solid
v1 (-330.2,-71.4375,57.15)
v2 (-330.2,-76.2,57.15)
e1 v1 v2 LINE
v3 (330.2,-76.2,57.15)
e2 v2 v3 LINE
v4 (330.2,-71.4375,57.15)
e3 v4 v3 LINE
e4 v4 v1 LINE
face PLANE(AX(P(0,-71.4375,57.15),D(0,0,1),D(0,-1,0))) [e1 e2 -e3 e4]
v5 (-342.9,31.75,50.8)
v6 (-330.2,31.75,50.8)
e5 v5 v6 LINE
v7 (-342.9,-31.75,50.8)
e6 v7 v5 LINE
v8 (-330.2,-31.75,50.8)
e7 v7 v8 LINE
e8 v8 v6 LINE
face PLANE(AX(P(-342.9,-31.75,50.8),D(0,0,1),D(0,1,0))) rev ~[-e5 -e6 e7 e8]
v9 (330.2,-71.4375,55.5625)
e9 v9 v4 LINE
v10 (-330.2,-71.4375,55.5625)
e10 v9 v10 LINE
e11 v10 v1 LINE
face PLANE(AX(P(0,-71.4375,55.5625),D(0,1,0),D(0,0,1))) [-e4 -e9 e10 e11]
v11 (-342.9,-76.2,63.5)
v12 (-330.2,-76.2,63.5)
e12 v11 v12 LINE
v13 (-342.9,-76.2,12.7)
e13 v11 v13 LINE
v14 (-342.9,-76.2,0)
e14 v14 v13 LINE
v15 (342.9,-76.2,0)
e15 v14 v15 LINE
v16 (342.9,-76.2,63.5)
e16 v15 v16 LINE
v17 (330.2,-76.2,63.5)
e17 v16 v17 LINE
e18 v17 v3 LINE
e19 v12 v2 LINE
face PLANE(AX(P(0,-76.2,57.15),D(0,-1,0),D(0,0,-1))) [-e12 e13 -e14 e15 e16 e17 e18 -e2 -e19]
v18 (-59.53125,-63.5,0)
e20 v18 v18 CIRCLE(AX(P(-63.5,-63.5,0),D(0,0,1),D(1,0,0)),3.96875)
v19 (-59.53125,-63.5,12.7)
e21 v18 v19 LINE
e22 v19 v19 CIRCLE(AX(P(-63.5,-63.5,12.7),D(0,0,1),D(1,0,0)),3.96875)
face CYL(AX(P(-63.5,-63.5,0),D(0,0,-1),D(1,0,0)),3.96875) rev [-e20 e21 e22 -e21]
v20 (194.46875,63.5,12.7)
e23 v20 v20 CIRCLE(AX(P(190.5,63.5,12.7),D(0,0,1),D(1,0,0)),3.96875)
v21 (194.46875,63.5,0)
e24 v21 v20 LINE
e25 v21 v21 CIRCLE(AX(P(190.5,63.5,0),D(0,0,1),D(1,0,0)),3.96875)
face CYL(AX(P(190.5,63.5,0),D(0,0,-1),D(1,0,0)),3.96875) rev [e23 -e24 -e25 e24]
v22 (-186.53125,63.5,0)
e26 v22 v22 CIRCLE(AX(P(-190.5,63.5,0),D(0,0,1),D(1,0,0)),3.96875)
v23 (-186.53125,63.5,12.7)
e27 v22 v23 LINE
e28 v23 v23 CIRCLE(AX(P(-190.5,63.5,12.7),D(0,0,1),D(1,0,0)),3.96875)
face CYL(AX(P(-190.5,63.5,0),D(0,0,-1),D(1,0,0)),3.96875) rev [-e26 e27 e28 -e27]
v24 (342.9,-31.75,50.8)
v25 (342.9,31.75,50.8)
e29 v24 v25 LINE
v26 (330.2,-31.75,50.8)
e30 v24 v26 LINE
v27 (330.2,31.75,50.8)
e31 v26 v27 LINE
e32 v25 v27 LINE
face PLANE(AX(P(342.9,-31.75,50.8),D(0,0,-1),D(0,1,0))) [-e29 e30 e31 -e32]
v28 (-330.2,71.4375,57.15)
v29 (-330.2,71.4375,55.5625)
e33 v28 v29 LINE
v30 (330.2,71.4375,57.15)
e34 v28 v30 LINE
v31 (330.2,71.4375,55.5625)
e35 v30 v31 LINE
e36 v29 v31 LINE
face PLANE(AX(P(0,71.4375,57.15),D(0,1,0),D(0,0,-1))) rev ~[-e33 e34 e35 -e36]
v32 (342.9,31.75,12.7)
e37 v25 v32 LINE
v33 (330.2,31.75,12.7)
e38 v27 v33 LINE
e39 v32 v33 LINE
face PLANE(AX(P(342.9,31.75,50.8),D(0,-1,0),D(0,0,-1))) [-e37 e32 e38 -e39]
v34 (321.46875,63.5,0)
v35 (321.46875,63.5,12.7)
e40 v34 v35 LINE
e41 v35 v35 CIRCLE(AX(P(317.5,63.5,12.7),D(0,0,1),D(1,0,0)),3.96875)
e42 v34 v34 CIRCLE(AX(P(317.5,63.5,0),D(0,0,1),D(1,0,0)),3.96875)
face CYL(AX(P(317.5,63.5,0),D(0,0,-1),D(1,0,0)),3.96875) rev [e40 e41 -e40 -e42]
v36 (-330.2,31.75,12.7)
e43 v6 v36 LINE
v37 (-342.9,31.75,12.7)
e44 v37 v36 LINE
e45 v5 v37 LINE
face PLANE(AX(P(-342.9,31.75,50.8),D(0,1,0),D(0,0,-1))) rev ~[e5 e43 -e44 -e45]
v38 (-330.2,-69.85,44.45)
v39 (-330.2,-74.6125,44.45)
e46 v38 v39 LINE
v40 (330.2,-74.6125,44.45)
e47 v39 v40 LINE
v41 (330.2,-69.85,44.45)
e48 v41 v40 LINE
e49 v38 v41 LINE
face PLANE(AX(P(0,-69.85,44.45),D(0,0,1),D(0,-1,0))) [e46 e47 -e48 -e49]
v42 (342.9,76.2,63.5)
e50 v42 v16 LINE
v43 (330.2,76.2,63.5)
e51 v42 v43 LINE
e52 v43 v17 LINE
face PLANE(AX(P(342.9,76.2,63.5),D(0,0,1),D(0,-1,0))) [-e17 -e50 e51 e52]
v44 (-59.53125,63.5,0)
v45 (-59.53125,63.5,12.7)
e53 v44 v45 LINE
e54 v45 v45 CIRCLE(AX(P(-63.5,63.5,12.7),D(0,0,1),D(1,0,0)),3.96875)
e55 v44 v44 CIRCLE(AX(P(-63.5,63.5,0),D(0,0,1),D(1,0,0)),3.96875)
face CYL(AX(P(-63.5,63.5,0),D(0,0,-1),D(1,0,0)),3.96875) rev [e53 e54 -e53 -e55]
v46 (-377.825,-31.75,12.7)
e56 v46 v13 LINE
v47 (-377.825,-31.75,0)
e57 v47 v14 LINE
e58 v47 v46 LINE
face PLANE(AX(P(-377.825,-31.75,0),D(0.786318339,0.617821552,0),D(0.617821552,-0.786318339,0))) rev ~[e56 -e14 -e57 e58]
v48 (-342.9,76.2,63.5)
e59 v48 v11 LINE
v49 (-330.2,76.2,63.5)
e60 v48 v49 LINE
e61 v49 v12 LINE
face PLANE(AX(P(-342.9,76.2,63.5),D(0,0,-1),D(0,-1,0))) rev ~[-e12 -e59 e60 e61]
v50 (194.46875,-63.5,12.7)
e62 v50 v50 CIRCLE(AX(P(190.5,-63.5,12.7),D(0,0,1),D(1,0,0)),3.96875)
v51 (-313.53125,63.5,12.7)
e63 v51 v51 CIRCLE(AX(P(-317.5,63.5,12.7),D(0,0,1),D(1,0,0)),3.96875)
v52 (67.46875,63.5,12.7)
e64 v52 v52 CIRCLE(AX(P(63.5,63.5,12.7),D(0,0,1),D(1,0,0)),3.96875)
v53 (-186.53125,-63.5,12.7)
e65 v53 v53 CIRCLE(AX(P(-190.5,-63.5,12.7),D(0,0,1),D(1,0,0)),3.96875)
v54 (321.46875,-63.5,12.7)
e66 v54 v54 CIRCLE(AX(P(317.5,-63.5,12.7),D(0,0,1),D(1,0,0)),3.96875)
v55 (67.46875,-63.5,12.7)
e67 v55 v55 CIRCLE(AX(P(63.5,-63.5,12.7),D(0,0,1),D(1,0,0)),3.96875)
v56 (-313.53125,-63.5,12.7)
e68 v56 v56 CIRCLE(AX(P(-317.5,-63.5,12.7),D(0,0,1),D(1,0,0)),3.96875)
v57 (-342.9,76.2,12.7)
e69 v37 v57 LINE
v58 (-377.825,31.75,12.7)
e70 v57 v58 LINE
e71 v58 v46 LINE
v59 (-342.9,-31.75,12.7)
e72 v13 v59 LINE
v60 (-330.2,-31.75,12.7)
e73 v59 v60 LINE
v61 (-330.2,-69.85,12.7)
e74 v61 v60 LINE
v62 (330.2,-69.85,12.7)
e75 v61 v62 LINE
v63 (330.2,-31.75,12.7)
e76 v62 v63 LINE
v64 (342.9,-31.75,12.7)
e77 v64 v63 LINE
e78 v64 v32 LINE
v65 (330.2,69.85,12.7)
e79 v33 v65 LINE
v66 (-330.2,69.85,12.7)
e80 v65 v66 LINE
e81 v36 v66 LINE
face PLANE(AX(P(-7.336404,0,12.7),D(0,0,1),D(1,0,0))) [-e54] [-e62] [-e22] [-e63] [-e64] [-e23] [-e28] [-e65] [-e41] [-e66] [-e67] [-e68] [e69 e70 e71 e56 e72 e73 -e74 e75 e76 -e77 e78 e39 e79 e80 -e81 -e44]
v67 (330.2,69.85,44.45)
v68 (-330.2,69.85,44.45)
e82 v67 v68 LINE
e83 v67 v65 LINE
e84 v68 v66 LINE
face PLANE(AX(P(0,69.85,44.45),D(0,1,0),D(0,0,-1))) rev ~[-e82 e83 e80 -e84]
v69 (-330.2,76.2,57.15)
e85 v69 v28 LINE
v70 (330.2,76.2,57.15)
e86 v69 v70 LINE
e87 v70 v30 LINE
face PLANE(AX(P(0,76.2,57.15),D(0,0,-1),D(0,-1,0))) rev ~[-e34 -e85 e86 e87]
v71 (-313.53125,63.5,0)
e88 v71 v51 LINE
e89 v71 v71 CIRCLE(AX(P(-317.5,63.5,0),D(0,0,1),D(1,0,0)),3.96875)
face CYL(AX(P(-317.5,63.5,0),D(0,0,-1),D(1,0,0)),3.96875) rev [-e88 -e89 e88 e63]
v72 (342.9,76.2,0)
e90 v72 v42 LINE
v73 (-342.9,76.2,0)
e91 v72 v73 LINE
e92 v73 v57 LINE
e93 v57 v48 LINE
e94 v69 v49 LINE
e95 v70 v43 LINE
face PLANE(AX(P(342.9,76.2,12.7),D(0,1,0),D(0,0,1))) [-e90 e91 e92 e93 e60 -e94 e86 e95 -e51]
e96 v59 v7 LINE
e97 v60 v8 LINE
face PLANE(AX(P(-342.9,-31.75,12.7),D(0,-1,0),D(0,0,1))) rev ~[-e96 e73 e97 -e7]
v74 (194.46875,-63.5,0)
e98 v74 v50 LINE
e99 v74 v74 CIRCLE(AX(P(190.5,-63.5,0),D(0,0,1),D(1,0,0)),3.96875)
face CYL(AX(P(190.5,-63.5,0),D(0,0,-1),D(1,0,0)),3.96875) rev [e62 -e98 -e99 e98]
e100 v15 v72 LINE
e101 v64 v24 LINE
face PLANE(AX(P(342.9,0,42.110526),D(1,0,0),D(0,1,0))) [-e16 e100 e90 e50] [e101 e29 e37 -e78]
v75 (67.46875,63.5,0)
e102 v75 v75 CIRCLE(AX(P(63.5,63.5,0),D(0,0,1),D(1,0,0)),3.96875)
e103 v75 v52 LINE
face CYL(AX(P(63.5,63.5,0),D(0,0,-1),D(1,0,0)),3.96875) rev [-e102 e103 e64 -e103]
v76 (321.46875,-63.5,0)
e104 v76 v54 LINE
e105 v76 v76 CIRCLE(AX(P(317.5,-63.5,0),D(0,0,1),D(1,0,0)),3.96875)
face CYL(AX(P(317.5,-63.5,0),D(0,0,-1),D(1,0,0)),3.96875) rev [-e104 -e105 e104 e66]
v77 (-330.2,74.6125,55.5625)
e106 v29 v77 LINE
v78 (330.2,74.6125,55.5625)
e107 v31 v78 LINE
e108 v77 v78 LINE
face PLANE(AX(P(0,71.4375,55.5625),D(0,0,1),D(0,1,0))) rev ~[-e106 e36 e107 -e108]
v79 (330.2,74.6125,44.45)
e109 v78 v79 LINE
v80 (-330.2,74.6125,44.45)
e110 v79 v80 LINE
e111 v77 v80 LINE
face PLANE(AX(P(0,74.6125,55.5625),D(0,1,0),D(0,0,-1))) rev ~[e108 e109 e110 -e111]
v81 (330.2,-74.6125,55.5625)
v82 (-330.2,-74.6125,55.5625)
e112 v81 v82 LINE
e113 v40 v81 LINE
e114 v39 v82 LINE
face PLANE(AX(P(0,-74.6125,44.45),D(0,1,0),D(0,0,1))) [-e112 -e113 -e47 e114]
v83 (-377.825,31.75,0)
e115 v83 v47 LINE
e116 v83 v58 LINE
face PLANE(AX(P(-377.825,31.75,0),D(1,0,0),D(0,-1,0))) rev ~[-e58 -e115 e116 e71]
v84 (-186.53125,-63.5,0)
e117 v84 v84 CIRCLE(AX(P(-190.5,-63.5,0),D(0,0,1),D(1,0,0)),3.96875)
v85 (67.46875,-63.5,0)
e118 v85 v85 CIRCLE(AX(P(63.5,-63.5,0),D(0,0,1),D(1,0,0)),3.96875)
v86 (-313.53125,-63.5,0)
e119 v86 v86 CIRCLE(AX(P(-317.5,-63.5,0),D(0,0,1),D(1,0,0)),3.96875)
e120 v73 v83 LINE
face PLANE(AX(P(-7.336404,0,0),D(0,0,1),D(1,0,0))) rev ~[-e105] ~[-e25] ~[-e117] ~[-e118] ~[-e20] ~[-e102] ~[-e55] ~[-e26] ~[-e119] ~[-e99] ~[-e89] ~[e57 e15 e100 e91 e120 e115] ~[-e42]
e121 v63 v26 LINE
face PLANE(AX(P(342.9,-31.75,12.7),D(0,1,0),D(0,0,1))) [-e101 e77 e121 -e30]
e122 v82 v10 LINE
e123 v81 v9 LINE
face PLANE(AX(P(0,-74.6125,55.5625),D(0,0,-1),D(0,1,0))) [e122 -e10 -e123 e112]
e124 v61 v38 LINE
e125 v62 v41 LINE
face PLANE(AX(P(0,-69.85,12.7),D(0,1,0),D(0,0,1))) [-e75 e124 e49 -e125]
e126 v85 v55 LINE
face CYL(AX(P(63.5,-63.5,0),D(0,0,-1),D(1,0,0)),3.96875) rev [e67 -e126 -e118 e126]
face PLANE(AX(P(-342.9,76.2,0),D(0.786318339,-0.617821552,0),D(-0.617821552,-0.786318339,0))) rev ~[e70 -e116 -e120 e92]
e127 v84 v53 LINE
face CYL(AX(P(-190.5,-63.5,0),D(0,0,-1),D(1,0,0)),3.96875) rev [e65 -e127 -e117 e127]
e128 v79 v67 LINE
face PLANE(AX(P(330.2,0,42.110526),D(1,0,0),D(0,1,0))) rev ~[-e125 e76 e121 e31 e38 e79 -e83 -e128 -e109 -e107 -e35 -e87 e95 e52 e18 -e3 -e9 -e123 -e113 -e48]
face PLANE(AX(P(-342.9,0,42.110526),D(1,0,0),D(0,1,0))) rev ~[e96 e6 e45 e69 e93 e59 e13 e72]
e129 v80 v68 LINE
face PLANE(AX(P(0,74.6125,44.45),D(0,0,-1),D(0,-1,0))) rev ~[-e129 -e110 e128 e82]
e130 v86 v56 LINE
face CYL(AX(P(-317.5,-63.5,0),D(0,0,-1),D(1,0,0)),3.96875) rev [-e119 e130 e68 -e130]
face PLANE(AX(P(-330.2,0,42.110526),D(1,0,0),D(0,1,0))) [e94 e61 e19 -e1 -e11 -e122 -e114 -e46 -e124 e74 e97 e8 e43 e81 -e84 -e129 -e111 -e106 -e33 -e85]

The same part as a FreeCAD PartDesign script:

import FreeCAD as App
import Part
import Sketcher
Q = App.Units.Quantity


def add_polygon(sketch, points):
    """Adds a closed chain of lines whose ends are joined by coincident constraints."""
    first, n = sketch.GeometryCount, len(points)
    for a, b in zip(points, points[1:] + points[:1]):
        sketch.addGeometry(Part.LineSegment(App.Vector(*a, 0), App.Vector(*b, 0)), False)
    for i in range(n):
        sketch.addConstraint(Sketcher.Constraint("Coincident", first + i, 2, first + (i + 1) % n, 1))

doc = App.newDocument("Part")
body = doc.addObject("PartDesign::Body", "Body")

# Sketch on XY plane
sketch1 = doc.addObject("Sketcher::SketchObject", "Sketch")
body.addObject(sketch1)
sketch1.AttachmentSupport = (doc.XY_Plane, [""])
sketch1.MapMode = "FlatFace"
add_polygon(sketch1, [(342.9, 76.2), (-342.9, 76.2), (-377.8, 31.8), (-377.8, -31.8), (-342.9, -76.2), (342.9, -76.2)])  # lines 0-5
sketch1.addGeometry(Part.Circle(App.Vector(-317.5, -63.5, 0), App.Vector(0, 0, 1), 4), False)  # 6
sketch1.addGeometry(Part.Circle(App.Vector(-190.5, -63.5, 0), App.Vector(0, 0, 1), 4), False)  # 7
sketch1.addGeometry(Part.Circle(App.Vector(-63.5, -63.5, 0), App.Vector(0, 0, 1), 4), False)  # 8
sketch1.addGeometry(Part.Circle(App.Vector(63.5, -63.5, 0), App.Vector(0, 0, 1), 4), False)  # 9
sketch1.addGeometry(Part.Circle(App.Vector(190.5, -63.5, 0), App.Vector(0, 0, 1), 4), False)  # 10
sketch1.addGeometry(Part.Circle(App.Vector(317.5, -63.5, 0), App.Vector(0, 0, 1), 4), False)  # 11
sketch1.addGeometry(Part.Circle(App.Vector(-317.5, 63.5, 0), App.Vector(0, 0, 1), 4), False)  # 12
sketch1.addGeometry(Part.Circle(App.Vector(-190.5, 63.5, 0), App.Vector(0, 0, 1), 4), False)  # 13
sketch1.addGeometry(Part.Circle(App.Vector(-63.5, 63.5, 0), App.Vector(0, 0, 1), 4), False)  # 14
sketch1.addGeometry(Part.Circle(App.Vector(63.5, 63.5, 0), App.Vector(0, 0, 1), 4), False)  # 15
sketch1.addGeometry(Part.Circle(App.Vector(190.5, 63.5, 0), App.Vector(0, 0, 1), 4), False)  # 16
sketch1.addGeometry(Part.Circle(App.Vector(317.5, 63.5, 0), App.Vector(0, 0, 1), 4), False)  # 17
sketch1.addConstraint([
    Sketcher.Constraint("Horizontal", 0),
    Sketcher.Constraint("Vertical", 2),
    Sketcher.Constraint("Horizontal", 4),
    Sketcher.Constraint("Vertical", 5),
    Sketcher.Constraint("Equal", 6, 7),
    Sketcher.Constraint("Equal", 7, 8),
    Sketcher.Constraint("Equal", 8, 9),
    Sketcher.Constraint("Equal", 9, 10),
    Sketcher.Constraint("Equal", 10, 11),
    Sketcher.Constraint("Equal", 11, 12),
    Sketcher.Constraint("Equal", 12, 13),
    Sketcher.Constraint("Equal", 13, 14),
    Sketcher.Constraint("Equal", 14, 15),
    Sketcher.Constraint("Equal", 15, 16),
    Sketcher.Constraint("Equal", 16, 17),
    Sketcher.Constraint("Symmetric", 11, 3, 12, 3, -1, 1),
    Sketcher.Constraint("Symmetric", 10, 3, 13, 3, -1, 1),
    Sketcher.Constraint("Symmetric", 9, 3, 14, 3, -1, 1),
    Sketcher.Constraint("Symmetric", 8, 3, 15, 3, -1, 1),
    Sketcher.Constraint("Symmetric", 7, 3, 16, 3, -1, 1),
    Sketcher.Constraint("Symmetric", 6, 3, 17, 3, -1, 1),
    Sketcher.Constraint("Symmetric", 0, 2, 4, 2, -1, 1),
    Sketcher.Constraint("Symmetric", 8, 3, 9, 3, -2),
    Sketcher.Constraint("Symmetric", 7, 3, 10, 3, -2),
    Sketcher.Constraint("Symmetric", 6, 3, 11, 3, -2),
    Sketcher.Constraint("Horizontal", 6, 3, 7, 3),
    Sketcher.Constraint("Horizontal", 7, 3, 8, 3),
    Sketcher.Constraint("Vertical", 0, 2, 3, 2),
    Sketcher.Constraint("Equal", 1, 3),
    Sketcher.Constraint("DistanceX", 0, 2, 0, 1, Q("27 in")),
    Sketcher.Constraint("DistanceY", 5, 1, 5, 2, Q("6 in")),
    Sketcher.Constraint("Diameter", 6, Q("0.3125 in")),
    Sketcher.Constraint("DistanceY", 2, 2, 2, 1, Q("2.5 in")),
    Sketcher.Constraint("DistanceX", 6, 3, 7, 3, Q("5 in")),
    Sketcher.Constraint("DistanceX", 7, 3, 8, 3, Q("5 in")),
    Sketcher.Constraint("DistanceX", 8, 3, 9, 3, Q("5 in")),
    Sketcher.Constraint("DistanceY", 6, 3, 12, 3, Q("5 in")),
    Sketcher.Constraint("DistanceX", 1, 2, -1, 1, Q("14.875 in")),
])
pad1 = doc.addObject("PartDesign::Pad", "Pad")
body.addObject(pad1)
pad1.Profile = sketch1
pad1.Length = Q("0.5 in")

# Sketch on YZ plane
sketch2 = doc.addObject("Sketcher::SketchObject", "Sketch001")
body.addObject(sketch2)
sketch2.AttachmentSupport = (doc.YZ_Plane, [""])
sketch2.MapMode = "FlatFace"
sketch2.AttachmentOffset = App.Placement(App.Vector(0, 0, -13.5 * 25.4), App.Rotation())
add_polygon(sketch2, [(76, 64), (-76, 64), (-76, 13), (-32, 13), (-32, 51), (32, 51), (32, 13), (76, 13)])  # lines 0-7
sketch2.addConstraint([
    Sketcher.Constraint("Horizontal", 0),
    Sketcher.Constraint("Vertical", 1),
    Sketcher.Constraint("Horizontal", 2),
    Sketcher.Constraint("Vertical", 3),
    Sketcher.Constraint("Horizontal", 4),
    Sketcher.Constraint("Vertical", 5),
    Sketcher.Constraint("Horizontal", 6),
    Sketcher.Constraint("Vertical", 7),
    Sketcher.Constraint("Symmetric", 2, 2, 5, 2, -2),
    Sketcher.Constraint("Equal", 2, 6),
    Sketcher.Constraint("DistanceX", 0, 2, 0, 1, Q("6 in")),
    Sketcher.Constraint("DistanceY", 1, 2, 1, 1, Q("2 in")),
    Sketcher.Constraint("DistanceX", 4, 1, 4, 2, Q("2.5 in")),
    Sketcher.Constraint("DistanceY", 3, 1, 3, 2, Q("1.5 in")),
    Sketcher.Constraint("DistanceY", -1, 1, 3, 2, Q("2 in")),
])
pad2 = doc.addObject("PartDesign::Pad", "Pad001")
body.addObject(pad2)
pad2.Profile = sketch2
pad2.Length = Q("0.5 in")

# Sketch on YZ plane
sketch3 = doc.addObject("Sketcher::SketchObject", "Sketch002")
body.addObject(sketch3)
sketch3.AttachmentSupport = (doc.YZ_Plane, [""])
sketch3.MapMode = "FlatFace"
sketch3.AttachmentOffset = App.Placement(App.Vector(0, 0, 13.5 * 25.4), App.Rotation())
add_polygon(sketch3, [(-76, 64), (-76, 13), (-32, 13), (-32, 51), (32, 51), (32, 13), (76, 13), (76, 64)])  # lines 0-7
sketch3.addConstraint([
    Sketcher.Constraint("Vertical", 0),
    Sketcher.Constraint("Horizontal", 1),
    Sketcher.Constraint("Vertical", 2),
    Sketcher.Constraint("Horizontal", 3),
    Sketcher.Constraint("Vertical", 4),
    Sketcher.Constraint("Horizontal", 5),
    Sketcher.Constraint("Vertical", 6),
    Sketcher.Constraint("Horizontal", 7),
    Sketcher.Constraint("Symmetric", 1, 2, 4, 2, -2),
    Sketcher.Constraint("Equal", 1, 5),
    Sketcher.Constraint("DistanceX", 7, 2, 7, 1, Q("6 in")),
    Sketcher.Constraint("DistanceY", 0, 2, 0, 1, Q("2 in")),
    Sketcher.Constraint("DistanceX", 3, 1, 3, 2, Q("2.5 in")),
    Sketcher.Constraint("DistanceY", 2, 1, 2, 2, Q("1.5 in")),
    Sketcher.Constraint("DistanceY", -1, 1, 2, 2, Q("2 in")),
])
pad3 = doc.addObject("PartDesign::Pad", "Pad002")
body.addObject(pad3)
pad3.Profile = sketch3
pad3.Length = Q("0.5 in")
pad3.Reversed = True

# Sketch on YZ plane
sketch4 = doc.addObject("Sketcher::SketchObject", "Sketch003")
body.addObject(sketch4)
sketch4.AttachmentSupport = (doc.YZ_Plane, [""])
sketch4.MapMode = "FlatFace"
add_polygon(sketch4, [(69.8, 12.7), (76.2, 12.7), (76.2, 57.1), (71.4, 57.1), (71.4, 55.6), (74.6, 55.6), (74.6, 44.5), (69.8, 44.5)])  # lines 0-7
add_polygon(sketch4, [(-71.4, 57.1), (-76.2, 57.1), (-76.2, 12.7), (-69.8, 12.7), (-69.8, 44.5), (-74.6, 44.5), (-74.6, 55.6), (-71.4, 55.6)])  # lines 8-15
sketch4.addConstraint([
    Sketcher.Constraint("Horizontal", 0),
    Sketcher.Constraint("Vertical", 1),
    Sketcher.Constraint("Horizontal", 2),
    Sketcher.Constraint("Vertical", 3),
    Sketcher.Constraint("Horizontal", 4),
    Sketcher.Constraint("Vertical", 5),
    Sketcher.Constraint("Horizontal", 6),
    Sketcher.Constraint("Vertical", 7),
    Sketcher.Constraint("Horizontal", 8),
    Sketcher.Constraint("Vertical", 9),
    Sketcher.Constraint("Horizontal", 10),
    Sketcher.Constraint("Vertical", 11),
    Sketcher.Constraint("Horizontal", 12),
    Sketcher.Constraint("Vertical", 13),
    Sketcher.Constraint("Horizontal", 14),
    Sketcher.Constraint("Vertical", 15),
    Sketcher.Constraint("Symmetric", 1, 2, 8, 2, -2),
    Sketcher.Constraint("Symmetric", 7, 2, 10, 2, -2),
    Sketcher.Constraint("Symmetric", 5, 2, 12, 2, -2),
    Sketcher.Constraint("Symmetric", 3, 2, 14, 2, -2),
    Sketcher.Constraint("Equal", 2, 6),
    Sketcher.Constraint("DistanceX", -1, 1, 0, 2, Q("3 in")),
    Sketcher.Constraint("DistanceX", 0, 1, 0, 2, Q("0.25 in")),
    Sketcher.Constraint("DistanceY", 1, 1, 1, 2, Q("1.75 in")),
    Sketcher.Constraint("DistanceY", 7, 2, 7, 1, Q("1.25 in")),
    Sketcher.Constraint("DistanceY", -1, 1, 0, 2, Q("0.5 in")),
    Sketcher.Constraint("DistanceX", 2, 2, 2, 1, Q("0.1875 in")),
    Sketcher.Constraint("DistanceY", 3, 2, 3, 1, Q("0.0625 in")),
])
pad4 = doc.addObject("PartDesign::Pad", "Pad003")
body.addObject(pad4)
pad4.Profile = sketch4
pad4.Length = Q("26 in")
pad4.Midplane = True

doc.recompute()
